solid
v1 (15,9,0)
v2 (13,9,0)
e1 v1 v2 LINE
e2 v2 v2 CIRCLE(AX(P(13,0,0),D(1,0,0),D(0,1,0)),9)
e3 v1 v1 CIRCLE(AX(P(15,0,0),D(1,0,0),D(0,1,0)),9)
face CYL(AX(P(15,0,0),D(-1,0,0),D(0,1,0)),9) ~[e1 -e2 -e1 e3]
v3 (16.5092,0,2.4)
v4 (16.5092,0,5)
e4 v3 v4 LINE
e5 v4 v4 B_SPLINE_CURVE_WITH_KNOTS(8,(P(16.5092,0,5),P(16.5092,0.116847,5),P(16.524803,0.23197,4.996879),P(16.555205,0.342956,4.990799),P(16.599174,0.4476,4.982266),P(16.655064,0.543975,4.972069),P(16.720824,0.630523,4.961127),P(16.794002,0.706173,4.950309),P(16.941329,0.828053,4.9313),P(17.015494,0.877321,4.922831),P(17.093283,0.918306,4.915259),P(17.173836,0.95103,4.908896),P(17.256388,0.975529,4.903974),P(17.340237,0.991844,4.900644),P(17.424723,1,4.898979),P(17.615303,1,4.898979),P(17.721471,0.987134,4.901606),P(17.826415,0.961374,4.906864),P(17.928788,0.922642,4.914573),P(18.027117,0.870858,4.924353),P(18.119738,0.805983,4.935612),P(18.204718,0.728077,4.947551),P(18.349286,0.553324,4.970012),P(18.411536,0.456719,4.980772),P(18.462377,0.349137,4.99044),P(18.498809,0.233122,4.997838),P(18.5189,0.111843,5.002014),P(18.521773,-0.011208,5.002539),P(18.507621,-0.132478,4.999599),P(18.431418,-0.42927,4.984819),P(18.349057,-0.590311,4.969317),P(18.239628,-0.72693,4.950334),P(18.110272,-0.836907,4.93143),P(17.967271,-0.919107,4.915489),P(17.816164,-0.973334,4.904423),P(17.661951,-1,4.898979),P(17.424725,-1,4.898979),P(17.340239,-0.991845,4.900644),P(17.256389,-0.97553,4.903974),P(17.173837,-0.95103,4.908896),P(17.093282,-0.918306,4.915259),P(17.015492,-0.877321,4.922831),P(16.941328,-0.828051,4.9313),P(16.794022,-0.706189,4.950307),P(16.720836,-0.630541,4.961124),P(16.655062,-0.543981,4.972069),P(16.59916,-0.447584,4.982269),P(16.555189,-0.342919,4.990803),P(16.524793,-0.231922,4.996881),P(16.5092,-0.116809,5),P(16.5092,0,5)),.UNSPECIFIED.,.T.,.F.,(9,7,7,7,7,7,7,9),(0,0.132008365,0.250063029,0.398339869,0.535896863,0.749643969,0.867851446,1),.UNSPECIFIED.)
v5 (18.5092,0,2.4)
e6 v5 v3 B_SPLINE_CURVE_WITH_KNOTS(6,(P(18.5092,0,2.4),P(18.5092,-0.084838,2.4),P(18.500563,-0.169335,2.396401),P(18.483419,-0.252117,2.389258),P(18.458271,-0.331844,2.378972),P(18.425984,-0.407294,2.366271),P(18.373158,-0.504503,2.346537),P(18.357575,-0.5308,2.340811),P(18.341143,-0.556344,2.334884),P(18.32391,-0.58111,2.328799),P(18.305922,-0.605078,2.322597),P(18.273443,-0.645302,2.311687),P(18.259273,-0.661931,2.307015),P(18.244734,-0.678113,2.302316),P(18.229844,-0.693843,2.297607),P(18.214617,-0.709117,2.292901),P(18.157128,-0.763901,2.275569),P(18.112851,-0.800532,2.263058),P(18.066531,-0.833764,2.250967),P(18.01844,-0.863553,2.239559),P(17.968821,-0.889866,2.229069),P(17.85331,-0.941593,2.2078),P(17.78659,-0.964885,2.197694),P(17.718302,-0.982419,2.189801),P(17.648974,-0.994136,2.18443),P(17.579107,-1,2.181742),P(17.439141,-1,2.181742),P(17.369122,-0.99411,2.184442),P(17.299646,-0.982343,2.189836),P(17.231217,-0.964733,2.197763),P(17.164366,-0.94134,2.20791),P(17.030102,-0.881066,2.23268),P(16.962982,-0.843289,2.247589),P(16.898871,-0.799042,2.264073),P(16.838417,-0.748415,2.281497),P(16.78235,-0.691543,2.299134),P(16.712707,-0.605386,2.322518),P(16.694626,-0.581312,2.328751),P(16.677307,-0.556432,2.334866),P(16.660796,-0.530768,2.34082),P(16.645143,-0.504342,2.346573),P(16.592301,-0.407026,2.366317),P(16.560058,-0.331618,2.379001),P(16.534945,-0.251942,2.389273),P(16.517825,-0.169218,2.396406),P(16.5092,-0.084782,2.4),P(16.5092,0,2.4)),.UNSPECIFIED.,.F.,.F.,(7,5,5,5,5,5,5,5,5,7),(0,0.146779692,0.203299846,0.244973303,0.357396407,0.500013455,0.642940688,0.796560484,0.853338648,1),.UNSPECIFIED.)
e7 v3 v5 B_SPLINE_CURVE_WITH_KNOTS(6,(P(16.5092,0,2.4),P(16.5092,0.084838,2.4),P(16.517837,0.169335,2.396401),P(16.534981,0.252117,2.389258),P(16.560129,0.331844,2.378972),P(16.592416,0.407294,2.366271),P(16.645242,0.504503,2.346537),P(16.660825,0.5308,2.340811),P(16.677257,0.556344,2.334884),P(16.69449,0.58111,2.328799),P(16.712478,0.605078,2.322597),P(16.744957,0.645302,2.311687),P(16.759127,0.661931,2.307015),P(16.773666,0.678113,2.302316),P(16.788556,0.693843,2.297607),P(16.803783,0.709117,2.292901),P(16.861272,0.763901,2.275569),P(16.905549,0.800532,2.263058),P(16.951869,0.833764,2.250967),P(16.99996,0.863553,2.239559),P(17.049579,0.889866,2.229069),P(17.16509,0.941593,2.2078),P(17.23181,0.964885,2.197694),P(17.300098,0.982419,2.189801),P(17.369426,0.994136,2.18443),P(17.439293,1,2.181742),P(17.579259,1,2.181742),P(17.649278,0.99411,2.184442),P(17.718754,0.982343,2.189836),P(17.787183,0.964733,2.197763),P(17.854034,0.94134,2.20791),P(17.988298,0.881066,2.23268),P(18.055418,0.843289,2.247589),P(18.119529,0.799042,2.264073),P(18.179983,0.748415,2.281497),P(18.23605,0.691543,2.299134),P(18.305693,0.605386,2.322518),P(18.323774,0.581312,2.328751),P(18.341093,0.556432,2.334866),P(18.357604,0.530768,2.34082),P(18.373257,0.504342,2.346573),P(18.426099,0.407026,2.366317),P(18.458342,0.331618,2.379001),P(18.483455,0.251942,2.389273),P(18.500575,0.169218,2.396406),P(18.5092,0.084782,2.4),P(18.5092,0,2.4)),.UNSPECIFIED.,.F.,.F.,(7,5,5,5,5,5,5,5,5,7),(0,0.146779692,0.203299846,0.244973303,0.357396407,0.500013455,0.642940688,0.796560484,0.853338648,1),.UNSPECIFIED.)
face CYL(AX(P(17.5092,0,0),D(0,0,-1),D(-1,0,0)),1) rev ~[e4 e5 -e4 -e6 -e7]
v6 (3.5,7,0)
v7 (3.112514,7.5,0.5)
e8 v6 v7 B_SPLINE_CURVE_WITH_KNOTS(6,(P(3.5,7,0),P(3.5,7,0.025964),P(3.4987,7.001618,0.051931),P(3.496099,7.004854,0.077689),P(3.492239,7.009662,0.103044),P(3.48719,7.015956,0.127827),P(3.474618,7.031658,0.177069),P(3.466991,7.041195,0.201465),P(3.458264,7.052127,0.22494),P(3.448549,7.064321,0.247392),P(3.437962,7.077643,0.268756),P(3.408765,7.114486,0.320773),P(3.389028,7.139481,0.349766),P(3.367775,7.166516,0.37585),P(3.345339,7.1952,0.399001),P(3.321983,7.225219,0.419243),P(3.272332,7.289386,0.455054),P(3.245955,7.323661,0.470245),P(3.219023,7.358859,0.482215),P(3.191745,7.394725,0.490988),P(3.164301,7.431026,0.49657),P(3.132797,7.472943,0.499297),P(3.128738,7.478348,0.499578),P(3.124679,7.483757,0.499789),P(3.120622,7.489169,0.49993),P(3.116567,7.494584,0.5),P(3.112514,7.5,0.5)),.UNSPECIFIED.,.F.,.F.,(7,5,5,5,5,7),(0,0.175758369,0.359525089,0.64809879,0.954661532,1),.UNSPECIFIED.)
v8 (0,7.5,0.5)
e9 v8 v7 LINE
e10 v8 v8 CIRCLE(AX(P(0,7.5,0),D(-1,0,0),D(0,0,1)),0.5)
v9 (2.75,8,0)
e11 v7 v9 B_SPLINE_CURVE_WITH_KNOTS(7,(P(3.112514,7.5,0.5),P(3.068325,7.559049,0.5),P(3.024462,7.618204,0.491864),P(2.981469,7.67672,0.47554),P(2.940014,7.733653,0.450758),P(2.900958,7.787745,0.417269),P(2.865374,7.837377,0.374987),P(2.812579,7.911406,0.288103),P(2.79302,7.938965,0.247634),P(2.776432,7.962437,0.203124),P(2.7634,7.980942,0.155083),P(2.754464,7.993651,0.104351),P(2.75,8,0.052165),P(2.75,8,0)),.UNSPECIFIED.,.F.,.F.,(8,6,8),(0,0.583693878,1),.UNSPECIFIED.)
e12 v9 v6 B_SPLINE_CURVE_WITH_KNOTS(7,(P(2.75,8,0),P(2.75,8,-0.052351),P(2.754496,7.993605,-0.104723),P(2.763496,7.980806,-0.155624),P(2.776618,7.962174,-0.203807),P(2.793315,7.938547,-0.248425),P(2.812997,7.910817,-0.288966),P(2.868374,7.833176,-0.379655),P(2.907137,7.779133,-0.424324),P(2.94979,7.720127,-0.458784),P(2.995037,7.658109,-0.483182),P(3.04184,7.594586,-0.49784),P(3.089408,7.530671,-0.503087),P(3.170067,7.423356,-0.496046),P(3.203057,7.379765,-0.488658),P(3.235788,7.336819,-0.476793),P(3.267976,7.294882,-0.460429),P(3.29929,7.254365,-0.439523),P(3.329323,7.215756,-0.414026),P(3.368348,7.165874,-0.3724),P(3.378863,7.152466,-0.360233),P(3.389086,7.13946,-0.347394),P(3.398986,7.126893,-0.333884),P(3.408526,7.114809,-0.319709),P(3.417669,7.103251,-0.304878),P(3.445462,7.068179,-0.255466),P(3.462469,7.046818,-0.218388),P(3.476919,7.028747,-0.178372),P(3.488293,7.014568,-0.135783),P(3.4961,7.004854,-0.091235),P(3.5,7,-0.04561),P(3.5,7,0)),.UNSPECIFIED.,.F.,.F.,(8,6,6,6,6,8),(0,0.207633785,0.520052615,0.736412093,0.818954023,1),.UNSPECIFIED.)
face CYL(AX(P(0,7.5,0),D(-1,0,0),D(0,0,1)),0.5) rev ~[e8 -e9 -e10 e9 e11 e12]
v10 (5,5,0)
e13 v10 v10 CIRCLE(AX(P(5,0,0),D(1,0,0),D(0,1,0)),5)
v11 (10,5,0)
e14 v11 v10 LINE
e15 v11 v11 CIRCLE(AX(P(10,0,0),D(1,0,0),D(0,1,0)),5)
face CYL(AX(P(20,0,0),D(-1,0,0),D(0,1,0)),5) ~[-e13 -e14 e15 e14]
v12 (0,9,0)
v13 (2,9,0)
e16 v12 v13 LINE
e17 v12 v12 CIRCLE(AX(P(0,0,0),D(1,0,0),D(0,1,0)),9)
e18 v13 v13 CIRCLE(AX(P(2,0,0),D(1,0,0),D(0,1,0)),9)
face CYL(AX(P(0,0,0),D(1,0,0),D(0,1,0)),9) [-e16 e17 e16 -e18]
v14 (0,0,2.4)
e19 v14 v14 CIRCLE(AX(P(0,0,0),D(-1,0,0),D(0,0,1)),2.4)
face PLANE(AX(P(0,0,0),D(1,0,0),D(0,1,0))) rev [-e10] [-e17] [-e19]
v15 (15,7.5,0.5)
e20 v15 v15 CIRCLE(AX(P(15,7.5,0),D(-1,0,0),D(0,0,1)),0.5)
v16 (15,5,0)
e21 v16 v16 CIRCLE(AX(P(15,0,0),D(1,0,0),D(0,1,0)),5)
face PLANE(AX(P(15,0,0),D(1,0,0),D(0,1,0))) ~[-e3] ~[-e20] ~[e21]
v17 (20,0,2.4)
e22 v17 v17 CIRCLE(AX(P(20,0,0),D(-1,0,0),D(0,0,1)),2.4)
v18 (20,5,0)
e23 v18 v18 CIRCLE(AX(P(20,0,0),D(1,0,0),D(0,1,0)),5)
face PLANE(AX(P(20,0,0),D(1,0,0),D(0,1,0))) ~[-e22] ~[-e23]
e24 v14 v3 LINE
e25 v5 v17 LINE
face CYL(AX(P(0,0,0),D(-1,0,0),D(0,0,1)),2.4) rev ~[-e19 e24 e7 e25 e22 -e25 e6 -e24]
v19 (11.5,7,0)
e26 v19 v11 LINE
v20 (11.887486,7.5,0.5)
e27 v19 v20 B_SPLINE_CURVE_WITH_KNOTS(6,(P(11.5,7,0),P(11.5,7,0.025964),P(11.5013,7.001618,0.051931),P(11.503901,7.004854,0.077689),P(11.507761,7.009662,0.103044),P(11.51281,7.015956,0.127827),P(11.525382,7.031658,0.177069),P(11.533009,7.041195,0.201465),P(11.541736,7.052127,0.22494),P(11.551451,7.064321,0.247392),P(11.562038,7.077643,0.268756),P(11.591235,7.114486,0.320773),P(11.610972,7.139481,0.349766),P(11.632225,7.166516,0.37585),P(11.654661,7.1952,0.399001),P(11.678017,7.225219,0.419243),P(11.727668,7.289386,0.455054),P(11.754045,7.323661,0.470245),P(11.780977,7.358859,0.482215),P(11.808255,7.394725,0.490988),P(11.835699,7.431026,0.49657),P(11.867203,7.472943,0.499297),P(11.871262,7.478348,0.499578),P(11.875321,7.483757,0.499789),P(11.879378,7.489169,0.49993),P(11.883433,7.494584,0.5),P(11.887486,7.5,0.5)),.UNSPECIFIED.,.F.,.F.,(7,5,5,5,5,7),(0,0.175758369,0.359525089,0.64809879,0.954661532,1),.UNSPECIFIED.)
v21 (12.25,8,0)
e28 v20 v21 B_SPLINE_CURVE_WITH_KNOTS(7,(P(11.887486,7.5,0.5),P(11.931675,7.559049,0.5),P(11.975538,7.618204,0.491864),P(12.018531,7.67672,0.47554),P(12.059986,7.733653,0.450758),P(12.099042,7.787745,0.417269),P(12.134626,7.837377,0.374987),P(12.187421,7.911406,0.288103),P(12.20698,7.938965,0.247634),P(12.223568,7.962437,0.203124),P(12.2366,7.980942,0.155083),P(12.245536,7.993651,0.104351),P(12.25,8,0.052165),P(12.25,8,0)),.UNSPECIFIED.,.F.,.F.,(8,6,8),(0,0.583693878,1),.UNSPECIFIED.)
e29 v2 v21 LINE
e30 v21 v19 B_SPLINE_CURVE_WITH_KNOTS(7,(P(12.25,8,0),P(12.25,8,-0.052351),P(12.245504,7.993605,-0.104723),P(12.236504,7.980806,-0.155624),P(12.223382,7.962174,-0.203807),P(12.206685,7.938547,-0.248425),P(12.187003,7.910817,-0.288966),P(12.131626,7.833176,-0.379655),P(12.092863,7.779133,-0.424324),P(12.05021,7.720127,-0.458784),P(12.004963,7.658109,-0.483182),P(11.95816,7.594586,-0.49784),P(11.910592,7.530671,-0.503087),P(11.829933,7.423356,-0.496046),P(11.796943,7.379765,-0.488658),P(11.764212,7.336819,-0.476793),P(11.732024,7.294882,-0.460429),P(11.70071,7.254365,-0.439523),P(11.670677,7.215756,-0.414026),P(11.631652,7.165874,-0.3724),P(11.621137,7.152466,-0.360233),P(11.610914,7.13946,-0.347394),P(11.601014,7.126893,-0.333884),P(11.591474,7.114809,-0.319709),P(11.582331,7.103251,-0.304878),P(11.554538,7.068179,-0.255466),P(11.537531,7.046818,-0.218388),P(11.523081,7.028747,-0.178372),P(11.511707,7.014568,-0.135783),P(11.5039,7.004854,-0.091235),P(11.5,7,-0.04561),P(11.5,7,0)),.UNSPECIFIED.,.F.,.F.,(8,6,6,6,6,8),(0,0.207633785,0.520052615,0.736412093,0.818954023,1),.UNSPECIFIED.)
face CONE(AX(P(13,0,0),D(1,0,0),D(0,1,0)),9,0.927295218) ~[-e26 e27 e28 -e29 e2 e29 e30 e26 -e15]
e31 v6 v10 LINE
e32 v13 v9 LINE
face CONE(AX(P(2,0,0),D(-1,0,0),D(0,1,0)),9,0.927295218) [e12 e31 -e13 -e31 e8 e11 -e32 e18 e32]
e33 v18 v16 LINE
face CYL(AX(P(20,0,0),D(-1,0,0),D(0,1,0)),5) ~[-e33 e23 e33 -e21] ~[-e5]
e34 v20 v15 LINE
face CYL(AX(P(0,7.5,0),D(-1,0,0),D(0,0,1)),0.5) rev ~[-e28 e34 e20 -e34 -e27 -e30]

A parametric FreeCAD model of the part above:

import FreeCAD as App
import Part
import Sketcher
from FreeCAD import Vector

doc = App.newDocument("Part")
body = doc.addObject("PartDesign::Body", "Body")

# Sketch on XY plane
sketch1 = body.newObject("Sketcher::SketchObject", "Sketch")
sketch1.AttachmentSupport = (doc.getObject("XY_Plane"), [""])
sketch1.MapMode = "FlatFace"
sketch1.addGeometry(Part.LineSegment(Vector(0, 0, 0), Vector(20, 0, 0)), False)
sketch1.addGeometry(Part.LineSegment(Vector(20, 0, 0), Vector(20, 5, 0)), False)
sketch1.addGeometry(Part.LineSegment(Vector(20, 5, 0), Vector(15, 5, 0)), False)
sketch1.addGeometry(Part.LineSegment(Vector(15, 5, 0), Vector(15, 9, 0)), False)
sketch1.addGeometry(Part.LineSegment(Vector(15, 9, 0), Vector(13, 9, 0)), False)
sketch1.addGeometry(Part.LineSegment(Vector(13, 9, 0), Vector(10, 5, 0)), False)
sketch1.addGeometry(Part.LineSegment(Vector(10, 5, 0), Vector(5, 5, 0)), False)
sketch1.addGeometry(Part.LineSegment(Vector(5, 5, 0), Vector(2, 9, 0)), False)
sketch1.addGeometry(Part.LineSegment(Vector(2, 9, 0), Vector(0, 9, 0)), False)
sketch1.addGeometry(Part.LineSegment(Vector(0, 9, 0), Vector(0, 0, 0)), False)
sketch1.addConstraint(Sketcher.Constraint("Coincident", 0, 2, 1, 1))
sketch1.addConstraint(Sketcher.Constraint("Coincident", 1, 2, 2, 1))
sketch1.addConstraint(Sketcher.Constraint("Coincident", 2, 2, 3, 1))
sketch1.addConstraint(Sketcher.Constraint("Coincident", 3, 2, 4, 1))
sketch1.addConstraint(Sketcher.Constraint("Coincident", 4, 2, 5, 1))
sketch1.addConstraint(Sketcher.Constraint("Coincident", 5, 2, 6, 1))
sketch1.addConstraint(Sketcher.Constraint("Coincident", 6, 2, 7, 1))
sketch1.addConstraint(Sketcher.Constraint("Coincident", 7, 2, 8, 1))
sketch1.addConstraint(Sketcher.Constraint("Coincident", 8, 2, 9, 1))
sketch1.addConstraint(Sketcher.Constraint("Coincident", 9, 2, 0, 1))
sketch1.addConstraint(Sketcher.Constraint("Horizontal", 0))
sketch1.addConstraint(Sketcher.Constraint("Vertical", 1))
sketch1.addConstraint(Sketcher.Constraint("Horizontal", 2))
sketch1.addConstraint(Sketcher.Constraint("Vertical", 3))
sketch1.addConstraint(Sketcher.Constraint("Horizontal", 4))
sketch1.addConstraint(Sketcher.Constraint("Horizontal", 6))
sketch1.addConstraint(Sketcher.Constraint("Horizontal", 8))
sketch1.addConstraint(Sketcher.Constraint("Vertical", 9))
sketch1.addConstraint(Sketcher.Constraint("Coincident", 9, 2, -1, 1))
sketch1.addConstraint(Sketcher.Constraint("Horizontal", 2, 2, 5, 2))
sketch1.addConstraint(Sketcher.Constraint("Horizontal", 4, 2, 7, 2))
sketch1.addConstraint(Sketcher.Constraint("Equal", 2, 6))
sketch1.addConstraint(Sketcher.Constraint("Equal", 4, 8))
sketch1.addConstraint(Sketcher.Constraint("Equal", 6, 1))
sketch1.addConstraint(Sketcher.Constraint("Equal", 5, 7))
sketch1.addConstraint(Sketcher.Constraint("DistanceX", 0, 1, 0, 2, 20.0))
sketch1.addConstraint(Sketcher.Constraint("DistanceX", 2, 2, 2, 1, 5.0))
sketch1.addConstraint(Sketcher.Constraint("DistanceX", 4, 2, 4, 1, 2.0))
sketch1.addConstraint(Sketcher.Constraint("DistanceY", 3, 1, 3, 2, 4.0))
revolution = body.newObject("PartDesign::Revolution", "Revolution")
revolution.Profile = sketch1
revolution.ReferenceAxis = (sketch1, ["H_Axis"])
revolution.Angle = 360

# Sketch on YZ plane
sketch2 = body.newObject("Sketcher::SketchObject", "Sketch001")
sketch2.AttachmentSupport = (doc.getObject("YZ_Plane"), [""])
sketch2.MapMode = "FlatFace"
sketch2.addGeometry(Part.Circle(Vector(0, 0, 0), Vector(0, 0, 1), 2.4), False)
sketch2.addGeometry(Part.Circle(Vector(7.5, 0, 0), Vector(0, 0, 1), 0.5), False)
sketch2.addConstraint(Sketcher.Constraint("Coincident", 0, 3, -1, 1))
sketch2.addConstraint(Sketcher.Constraint("PointOnObject", 1, 3, -1))
sketch2.addConstraint(Sketcher.Constraint("Diameter", 1, 1.0))
sketch2.addConstraint(Sketcher.Constraint("Diameter", 0, 4.8))
sketch2.addConstraint(Sketcher.Constraint("DistanceX", -1, 1, 1, 3, 7.5))
pocket1 = body.newObject("PartDesign::Pocket", "Pocket")
pocket1.Profile = sketch2
pocket1.Length = 20
pocket1.Reversed = True

# Sketch on XY plane
sketch3 = body.newObject("Sketcher::SketchObject", "Sketch002")
sketch3.AttachmentSupport = (doc.getObject("XY_Plane"), [""])
sketch3.MapMode = "FlatFace"
sketch3.addGeometry(Part.Circle(Vector(17.5092, 0, 0), Vector(0, 0, 1), 1), False)
sketch3.addConstraint(Sketcher.Constraint("PointOnObject", 0, 3, -1))
sketch3.addConstraint(Sketcher.Constraint("Diameter", 0, 2.0))
sketch3.addConstraint(Sketcher.Constraint("DistanceX", -1, 1, 0, 3, 17.5092))
pocket2 = body.newObject("PartDesign::Pocket", "Pocket001")
pocket2.Profile = sketch3
pocket2.Length = 6
pocket2.Reversed = True

doc.recompute()
